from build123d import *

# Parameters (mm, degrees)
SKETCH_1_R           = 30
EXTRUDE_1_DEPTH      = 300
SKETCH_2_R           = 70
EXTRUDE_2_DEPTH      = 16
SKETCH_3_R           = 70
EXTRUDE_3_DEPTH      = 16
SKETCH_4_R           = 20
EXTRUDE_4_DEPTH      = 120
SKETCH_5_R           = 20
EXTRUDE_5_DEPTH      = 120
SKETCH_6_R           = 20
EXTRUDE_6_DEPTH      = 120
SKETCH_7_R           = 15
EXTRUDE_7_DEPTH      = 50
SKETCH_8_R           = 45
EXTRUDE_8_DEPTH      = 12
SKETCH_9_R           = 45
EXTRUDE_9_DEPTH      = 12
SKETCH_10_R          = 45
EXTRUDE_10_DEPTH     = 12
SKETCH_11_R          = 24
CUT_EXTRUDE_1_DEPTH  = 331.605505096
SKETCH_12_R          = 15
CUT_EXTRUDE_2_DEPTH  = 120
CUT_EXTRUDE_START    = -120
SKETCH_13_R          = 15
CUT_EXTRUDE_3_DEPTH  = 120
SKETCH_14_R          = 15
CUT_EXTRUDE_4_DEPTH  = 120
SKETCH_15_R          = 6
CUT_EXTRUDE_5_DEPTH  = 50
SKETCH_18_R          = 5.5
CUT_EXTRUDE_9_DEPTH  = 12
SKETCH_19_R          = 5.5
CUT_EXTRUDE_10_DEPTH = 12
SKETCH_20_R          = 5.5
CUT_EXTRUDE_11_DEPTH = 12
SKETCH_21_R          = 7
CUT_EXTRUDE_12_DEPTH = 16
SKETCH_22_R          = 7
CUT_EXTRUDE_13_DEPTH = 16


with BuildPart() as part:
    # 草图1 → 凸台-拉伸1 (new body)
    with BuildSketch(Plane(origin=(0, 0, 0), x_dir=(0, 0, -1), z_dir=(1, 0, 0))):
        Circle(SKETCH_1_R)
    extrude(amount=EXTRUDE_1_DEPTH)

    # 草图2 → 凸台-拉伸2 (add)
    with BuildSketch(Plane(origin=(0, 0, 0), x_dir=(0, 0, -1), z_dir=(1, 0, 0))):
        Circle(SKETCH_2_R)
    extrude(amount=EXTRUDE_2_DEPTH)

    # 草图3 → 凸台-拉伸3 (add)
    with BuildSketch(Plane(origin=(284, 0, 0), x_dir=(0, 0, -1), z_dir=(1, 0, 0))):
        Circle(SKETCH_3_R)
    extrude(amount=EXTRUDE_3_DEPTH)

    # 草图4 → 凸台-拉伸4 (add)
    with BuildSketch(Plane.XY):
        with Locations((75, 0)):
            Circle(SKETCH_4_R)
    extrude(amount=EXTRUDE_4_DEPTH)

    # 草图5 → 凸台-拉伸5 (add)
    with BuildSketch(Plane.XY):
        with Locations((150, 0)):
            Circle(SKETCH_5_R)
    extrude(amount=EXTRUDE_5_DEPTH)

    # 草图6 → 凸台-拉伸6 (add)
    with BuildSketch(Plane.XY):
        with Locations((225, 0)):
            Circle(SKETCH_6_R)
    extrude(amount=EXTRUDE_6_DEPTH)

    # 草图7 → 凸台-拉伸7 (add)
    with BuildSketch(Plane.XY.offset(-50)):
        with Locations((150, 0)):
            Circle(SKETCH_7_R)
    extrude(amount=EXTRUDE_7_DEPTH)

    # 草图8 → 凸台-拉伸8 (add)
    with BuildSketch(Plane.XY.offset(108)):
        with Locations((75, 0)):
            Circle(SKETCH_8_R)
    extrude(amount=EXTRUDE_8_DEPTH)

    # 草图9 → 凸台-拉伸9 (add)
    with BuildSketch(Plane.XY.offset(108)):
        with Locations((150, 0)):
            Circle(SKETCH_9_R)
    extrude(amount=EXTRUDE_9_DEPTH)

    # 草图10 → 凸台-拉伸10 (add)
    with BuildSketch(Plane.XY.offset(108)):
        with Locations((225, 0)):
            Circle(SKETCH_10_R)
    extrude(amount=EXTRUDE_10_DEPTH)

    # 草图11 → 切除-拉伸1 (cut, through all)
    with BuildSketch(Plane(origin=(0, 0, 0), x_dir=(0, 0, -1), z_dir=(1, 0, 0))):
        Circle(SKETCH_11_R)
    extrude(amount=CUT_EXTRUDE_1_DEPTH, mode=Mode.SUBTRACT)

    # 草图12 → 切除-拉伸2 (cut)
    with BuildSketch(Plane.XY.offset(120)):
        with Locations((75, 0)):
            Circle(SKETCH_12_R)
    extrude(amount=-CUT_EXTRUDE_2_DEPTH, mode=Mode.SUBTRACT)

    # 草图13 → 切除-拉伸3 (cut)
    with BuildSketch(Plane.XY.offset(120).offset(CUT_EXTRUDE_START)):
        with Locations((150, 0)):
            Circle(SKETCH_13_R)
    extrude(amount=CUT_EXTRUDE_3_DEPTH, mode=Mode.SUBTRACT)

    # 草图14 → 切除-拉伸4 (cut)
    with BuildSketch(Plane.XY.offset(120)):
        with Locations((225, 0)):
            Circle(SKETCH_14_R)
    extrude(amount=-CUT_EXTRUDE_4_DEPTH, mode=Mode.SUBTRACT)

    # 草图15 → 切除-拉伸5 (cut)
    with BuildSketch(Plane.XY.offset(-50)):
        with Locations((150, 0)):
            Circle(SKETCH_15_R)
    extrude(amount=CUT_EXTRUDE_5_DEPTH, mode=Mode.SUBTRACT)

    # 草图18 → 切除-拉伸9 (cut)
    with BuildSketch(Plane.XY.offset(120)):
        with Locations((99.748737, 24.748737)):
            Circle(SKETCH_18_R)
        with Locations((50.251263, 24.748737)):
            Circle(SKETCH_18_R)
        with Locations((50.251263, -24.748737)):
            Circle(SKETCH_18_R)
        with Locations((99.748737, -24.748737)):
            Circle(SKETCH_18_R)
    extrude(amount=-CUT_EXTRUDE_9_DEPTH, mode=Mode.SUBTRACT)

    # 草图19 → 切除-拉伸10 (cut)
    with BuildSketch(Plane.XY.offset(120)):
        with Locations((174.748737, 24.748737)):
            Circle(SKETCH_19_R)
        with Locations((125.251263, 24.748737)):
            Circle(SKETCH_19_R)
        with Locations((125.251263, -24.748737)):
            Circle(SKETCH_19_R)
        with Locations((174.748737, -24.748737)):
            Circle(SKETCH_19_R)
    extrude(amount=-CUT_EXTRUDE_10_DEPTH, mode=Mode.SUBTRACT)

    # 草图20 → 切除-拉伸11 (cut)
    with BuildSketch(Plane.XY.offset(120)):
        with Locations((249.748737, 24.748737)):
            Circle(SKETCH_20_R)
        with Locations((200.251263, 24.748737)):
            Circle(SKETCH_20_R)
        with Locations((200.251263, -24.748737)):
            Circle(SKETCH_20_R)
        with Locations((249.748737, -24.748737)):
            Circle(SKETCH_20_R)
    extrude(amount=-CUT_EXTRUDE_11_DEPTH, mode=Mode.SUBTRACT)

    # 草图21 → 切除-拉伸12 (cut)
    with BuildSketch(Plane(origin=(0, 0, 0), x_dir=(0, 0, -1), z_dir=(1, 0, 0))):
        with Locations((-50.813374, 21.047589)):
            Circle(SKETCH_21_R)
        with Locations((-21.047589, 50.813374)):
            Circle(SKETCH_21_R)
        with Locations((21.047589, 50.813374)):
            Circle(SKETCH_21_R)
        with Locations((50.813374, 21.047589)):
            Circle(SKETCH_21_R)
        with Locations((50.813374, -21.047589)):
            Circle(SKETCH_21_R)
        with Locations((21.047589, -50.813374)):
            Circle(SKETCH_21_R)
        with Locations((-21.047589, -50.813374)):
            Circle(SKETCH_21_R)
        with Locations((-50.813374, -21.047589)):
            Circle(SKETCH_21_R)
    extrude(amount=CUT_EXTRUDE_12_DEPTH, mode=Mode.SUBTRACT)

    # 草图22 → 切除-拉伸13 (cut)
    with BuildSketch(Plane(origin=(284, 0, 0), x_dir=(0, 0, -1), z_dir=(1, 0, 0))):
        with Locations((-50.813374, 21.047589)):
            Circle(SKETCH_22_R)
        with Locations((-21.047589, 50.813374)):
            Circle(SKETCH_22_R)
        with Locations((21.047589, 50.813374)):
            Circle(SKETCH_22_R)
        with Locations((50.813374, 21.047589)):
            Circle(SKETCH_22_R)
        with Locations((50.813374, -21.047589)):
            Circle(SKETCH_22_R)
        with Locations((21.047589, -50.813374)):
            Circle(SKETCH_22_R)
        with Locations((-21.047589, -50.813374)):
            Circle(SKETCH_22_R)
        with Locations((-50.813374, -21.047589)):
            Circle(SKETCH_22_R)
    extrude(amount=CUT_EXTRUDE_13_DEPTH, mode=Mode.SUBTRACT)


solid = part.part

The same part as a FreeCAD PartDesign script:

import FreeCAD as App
import Part
import Sketcher

V = App.Vector

doc = App.newDocument("Part")
body = doc.addObject("PartDesign::Body", "Body")

sketch1 = body.newObject("Sketcher::SketchObject", "Sketch")
sketch1.AttachmentSupport = (doc.getObject("YZ_Plane"), [""])
sketch1.MapMode = "FlatFace"
sketch1.addGeometry(Part.Circle(V(0, 0, 0), V(0, 0, 1), 30), False)
sketch1.addConstraint([
    Sketcher.Constraint("Coincident", 0, 3, -1, 1),
    Sketcher.Constraint("Diameter", 0, 60.0),
])
pad1 = body.newObject("PartDesign::Pad", "Pad")
pad1.Profile = sketch1
pad1.Length = 300

sketch2 = body.newObject("Sketcher::SketchObject", "Sketch001")
sketch2.AttachmentSupport = (doc.getObject("YZ_Plane"), [""])
sketch2.MapMode = "FlatFace"
sketch2.addGeometry(Part.Circle(V(0, 0, 0), V(0, 0, 1), 70), False)
sketch2.addConstraint([
    Sketcher.Constraint("Coincident", 0, 3, -1, 1),
    Sketcher.Constraint("Diameter", 0, 140.0),
])
pad2 = body.newObject("PartDesign::Pad", "Pad001")
pad2.Profile = sketch2
pad2.Length = 16

sketch3 = body.newObject("Sketcher::SketchObject", "Sketch002")
sketch3.AttachmentSupport = (doc.getObject("YZ_Plane"), [""])
sketch3.MapMode = "FlatFace"
sketch3.AttachmentOffset = App.Placement(V(0, 0, 284), App.Rotation())
sketch3.addGeometry(Part.Circle(V(0, 0, 0), V(0, 0, 1), 70), False)
sketch3.addConstraint([
    Sketcher.Constraint("Coincident", 0, 3, -1, 1),
    Sketcher.Constraint("Diameter", 0, 140.0),
])
pad3 = body.newObject("PartDesign::Pad", "Pad002")
pad3.Profile = sketch3
pad3.Length = 16

sketch4 = body.newObject("Sketcher::SketchObject", "Sketch003")
sketch4.AttachmentSupport = (doc.getObject("XY_Plane"), [""])
sketch4.MapMode = "FlatFace"
sketch4.addGeometry(Part.Circle(V(75, 0, 0), V(0, 0, 1), 20), False)
sketch4.addConstraint([
    Sketcher.Constraint("PointOnObject", 0, 3, -1),
    Sketcher.Constraint("Diameter", 0, 40.0),
    Sketcher.Constraint("DistanceX", -1, 1, 0, 3, 75.0),
])
pad4 = body.newObject("PartDesign::Pad", "Pad003")
pad4.Profile = sketch4
pad4.Length = 120

sketch5 = body.newObject("Sketcher::SketchObject", "Sketch004")
sketch5.AttachmentSupport = (doc.getObject("XY_Plane"), [""])
sketch5.MapMode = "FlatFace"
sketch5.addGeometry(Part.Circle(V(150, 0, 0), V(0, 0, 1), 20), False)
sketch5.addConstraint([
    Sketcher.Constraint("PointOnObject", 0, 3, -1),
    Sketcher.Constraint("Diameter", 0, 40.0),
    Sketcher.Constraint("DistanceX", -1, 1, 0, 3, 150.0),
])
pad5 = body.newObject("PartDesign::Pad", "Pad004")
pad5.Profile = sketch5
pad5.Length = 120

sketch6 = body.newObject("Sketcher::SketchObject", "Sketch005")
sketch6.AttachmentSupport = (doc.getObject("XY_Plane"), [""])
sketch6.MapMode = "FlatFace"
sketch6.addGeometry(Part.Circle(V(225, 0, 0), V(0, 0, 1), 20), False)
sketch6.addConstraint([
    Sketcher.Constraint("PointOnObject", 0, 3, -1),
    Sketcher.Constraint("Diameter", 0, 40.0),
    Sketcher.Constraint("DistanceX", -1, 1, 0, 3, 225.0),
])
pad6 = body.newObject("PartDesign::Pad", "Pad005")
pad6.Profile = sketch6
pad6.Length = 120

sketch7 = body.newObject("Sketcher::SketchObject", "Sketch006")
sketch7.AttachmentSupport = (doc.getObject("XY_Plane"), [""])
sketch7.MapMode = "FlatFace"
sketch7.AttachmentOffset = App.Placement(V(0, 0, -50), App.Rotation())
sketch7.addGeometry(Part.Circle(V(150, 0, 0), V(0, 0, 1), 15), False)
sketch7.addConstraint([
    Sketcher.Constraint("PointOnObject", 0, 3, -1),
    Sketcher.Constraint("Diameter", 0, 30.0),
    Sketcher.Constraint("DistanceX", -1, 1, 0, 3, 150.0),
])
pad7 = body.newObject("PartDesign::Pad", "Pad006")
pad7.Profile = sketch7
pad7.Length = 50

sketch8 = body.newObject("Sketcher::SketchObject", "Sketch007")
sketch8.AttachmentSupport = (doc.getObject("XY_Plane"), [""])
sketch8.MapMode = "FlatFace"
sketch8.AttachmentOffset = App.Placement(V(0, 0, 108), App.Rotation())
sketch8.addGeometry(Part.Circle(V(75, 0, 0), V(0, 0, 1), 45), False)
sketch8.addConstraint([
    Sketcher.Constraint("PointOnObject", 0, 3, -1),
    Sketcher.Constraint("Diameter", 0, 90.0),
    Sketcher.Constraint("DistanceX", -1, 1, 0, 3, 75.0),
])
pad8 = body.newObject("PartDesign::Pad", "Pad007")
pad8.Profile = sketch8
pad8.Length = 12

sketch9 = body.newObject("Sketcher::SketchObject", "Sketch008")
sketch9.AttachmentSupport = (doc.getObject("XY_Plane"), [""])
sketch9.MapMode = "FlatFace"
sketch9.AttachmentOffset = App.Placement(V(0, 0, 108), App.Rotation())
sketch9.addGeometry(Part.Circle(V(150, 0, 0), V(0, 0, 1), 45), False)
sketch9.addConstraint([
    Sketcher.Constraint("PointOnObject", 0, 3, -1),
    Sketcher.Constraint("Diameter", 0, 90.0),
    Sketcher.Constraint("DistanceX", -1, 1, 0, 3, 150.0),
])
pad9 = body.newObject("PartDesign::Pad", "Pad008")
pad9.Profile = sketch9
pad9.Length = 12

sketch10 = body.newObject("Sketcher::SketchObject", "Sketch009")
sketch10.AttachmentSupport = (doc.getObject("XY_Plane"), [""])
sketch10.MapMode = "FlatFace"
sketch10.AttachmentOffset = App.Placement(V(0, 0, 108), App.Rotation())
sketch10.addGeometry(Part.Circle(V(225, 0, 0), V(0, 0, 1), 45), False)
sketch10.addConstraint([
    Sketcher.Constraint("PointOnObject", 0, 3, -1),
    Sketcher.Constraint("Diameter", 0, 90.0),
    Sketcher.Constraint("DistanceX", -1, 1, 0, 3, 225.0),
])
pad10 = body.newObject("PartDesign::Pad", "Pad009")
pad10.Profile = sketch10
pad10.Length = 12

sketch11 = body.newObject("Sketcher::SketchObject", "Sketch010")
sketch11.AttachmentSupport = (doc.getObject("YZ_Plane"), [""])
sketch11.MapMode = "FlatFace"
sketch11.addGeometry(Part.Circle(V(0, 0, 0), V(0, 0, 1), 24), False)
sketch11.addConstraint([
    Sketcher.Constraint("Coincident", 0, 3, -1, 1),
    Sketcher.Constraint("Diameter", 0, 48.0),
])
pocket1 = body.newObject("PartDesign::Pocket", "Pocket")
pocket1.Profile = sketch11
pocket1.Type = "ThroughAll"
pocket1.Reversed = True

sketch12 = body.newObject("Sketcher::SketchObject", "Sketch011")
sketch12.AttachmentSupport = (doc.getObject("XY_Plane"), [""])
sketch12.MapMode = "FlatFace"
sketch12.AttachmentOffset = App.Placement(V(0, 0, 120), App.Rotation())
sketch12.addGeometry(Part.Circle(V(75, 0, 0), V(0, 0, 1), 15), False)
sketch12.addConstraint([
    Sketcher.Constraint("PointOnObject", 0, 3, -1),
    Sketcher.Constraint("Diameter", 0, 30.0),
    Sketcher.Constraint("DistanceX", -1, 1, 0, 3, 75.0),
])
pocket2 = body.newObject("PartDesign::Pocket", "Pocket001")
pocket2.Profile = sketch12
pocket2.Length = 120

sketch13 = body.newObject("Sketcher::SketchObject", "Sketch012")
sketch13.AttachmentSupport = (doc.getObject("XY_Plane"), [""])
sketch13.MapMode = "FlatFace"
sketch13.addGeometry(Part.Circle(V(150, 0, 0), V(0, 0, 1), 15), False)
sketch13.addConstraint([
    Sketcher.Constraint("PointOnObject", 0, 3, -1),
    Sketcher.Constraint("Diameter", 0, 30.0),
    Sketcher.Constraint("DistanceX", -1, 1, 0, 3, 150.0),
])
pocket3 = body.newObject("PartDesign::Pocket", "Pocket002")
pocket3.Profile = sketch13
pocket3.Length = 120
pocket3.Reversed = True

sketch14 = body.newObject("Sketcher::SketchObject", "Sketch013")
sketch14.AttachmentSupport = (doc.getObject("XY_Plane"), [""])
sketch14.MapMode = "FlatFace"
sketch14.AttachmentOffset = App.Placement(V(0, 0, 120), App.Rotation())
sketch14.addGeometry(Part.Circle(V(225, 0, 0), V(0, 0, 1), 15), False)
sketch14.addConstraint([
    Sketcher.Constraint("PointOnObject", 0, 3, -1),
    Sketcher.Constraint("Diameter", 0, 30.0),
    Sketcher.Constraint("DistanceX", -1, 1, 0, 3, 225.0),
])
pocket4 = body.newObject("PartDesign::Pocket", "Pocket003")
pocket4.Profile = sketch14
pocket4.Length = 120

sketch15 = body.newObject("Sketcher::SketchObject", "Sketch014")
sketch15.AttachmentSupport = (doc.getObject("XY_Plane"), [""])
sketch15.MapMode = "FlatFace"
sketch15.AttachmentOffset = App.Placement(V(0, 0, -50), App.Rotation())
sketch15.addGeometry(Part.Circle(V(150, 0, 0), V(0, 0, 1), 6), False)
sketch15.addConstraint([
    Sketcher.Constraint("PointOnObject", 0, 3, -1),
    Sketcher.Constraint("Diameter", 0, 12.0),
    Sketcher.Constraint("DistanceX", -1, 1, 0, 3, 150.0),
])
pocket5 = body.newObject("PartDesign::Pocket", "Pocket004")
pocket5.Profile = sketch15
pocket5.Length = 50
pocket5.Reversed = True

sketch16 = body.newObject("Sketcher::SketchObject", "Sketch015")
sketch16.AttachmentSupport = (doc.getObject("XY_Plane"), [""])
sketch16.MapMode = "FlatFace"
sketch16.AttachmentOffset = App.Placement(V(0, 0, 120), App.Rotation())
sketch16.addGeometry([
    Part.Circle(V(100, 25, 0), V(0, 0, 1), 6),
    Part.Circle(V(50, 25, 0), V(0, 0, 1), 6),
    Part.Circle(V(50, -25, 0), V(0, 0, 1), 6),
    Part.Circle(V(100, -25, 0), V(0, 0, 1), 6),
], False)
sketch16.addConstraint([
    Sketcher.Constraint("Equal", 0, 1),
    Sketcher.Constraint("Equal", 1, 2),
    Sketcher.Constraint("Equal", 2, 3),
    Sketcher.Constraint("Symmetric", 1, 3, 2, 3, -1),
    Sketcher.Constraint("Symmetric", 0, 3, 3, 3, -1),
    Sketcher.Constraint("Horizontal", 0, 3, 1, 3),
    Sketcher.Constraint("Diameter", 0, 11.0),
    Sketcher.Constraint("DistanceX", -1, 1, 0, 3, 99.748737),
    Sketcher.Constraint("DistanceY", -1, 1, 0, 3, 24.748737),
    Sketcher.Constraint("DistanceX", -1, 1, 1, 3, 50.251263),
])
pocket6 = body.newObject("PartDesign::Pocket", "Pocket005")
pocket6.Profile = sketch16
pocket6.Length = 12

sketch17 = body.newObject("Sketcher::SketchObject", "Sketch016")
sketch17.AttachmentSupport = (doc.getObject("XY_Plane"), [""])
sketch17.MapMode = "FlatFace"
sketch17.AttachmentOffset = App.Placement(V(0, 0, 120), App.Rotation())
sketch17.addGeometry([
    Part.Circle(V(175, 25, 0), V(0, 0, 1), 6),
    Part.Circle(V(125, 25, 0), V(0, 0, 1), 6),
    Part.Circle(V(125, -25, 0), V(0, 0, 1), 6),
    Part.Circle(V(175, -25, 0), V(0, 0, 1), 6),
], False)
sketch17.addConstraint([
    Sketcher.Constraint("Equal", 0, 1),
    Sketcher.Constraint("Equal", 1, 2),
    Sketcher.Constraint("Equal", 2, 3),
    Sketcher.Constraint("Symmetric", 1, 3, 2, 3, -1),
    Sketcher.Constraint("Symmetric", 0, 3, 3, 3, -1),
    Sketcher.Constraint("Horizontal", 0, 3, 1, 3),
    Sketcher.Constraint("Diameter", 0, 11.0),
    Sketcher.Constraint("DistanceX", -1, 1, 0, 3, 174.748737),
    Sketcher.Constraint("DistanceY", -1, 1, 0, 3, 24.748737),
    Sketcher.Constraint("DistanceX", -1, 1, 1, 3, 125.251263),
])
pocket7 = body.newObject("PartDesign::Pocket", "Pocket006")
pocket7.Profile = sketch17
pocket7.Length = 12

sketch18 = body.newObject("Sketcher::SketchObject", "Sketch017")
sketch18.AttachmentSupport = (doc.getObject("XY_Plane"), [""])
sketch18.MapMode = "FlatFace"
sketch18.AttachmentOffset = App.Placement(V(0, 0, 120), App.Rotation())
sketch18.addGeometry([
    Part.Circle(V(250, 25, 0), V(0, 0, 1), 6),
    Part.Circle(V(200, 25, 0), V(0, 0, 1), 6),
    Part.Circle(V(200, -25, 0), V(0, 0, 1), 6),
    Part.Circle(V(250, -25, 0), V(0, 0, 1), 6),
], False)
sketch18.addConstraint([
    Sketcher.Constraint("Equal", 0, 1),
    Sketcher.Constraint("Equal", 1, 2),
    Sketcher.Constraint("Equal", 2, 3),
    Sketcher.Constraint("Symmetric", 1, 3, 2, 3, -1),
    Sketcher.Constraint("Symmetric", 0, 3, 3, 3, -1),
    Sketcher.Constraint("Horizontal", 0, 3, 1, 3),
    Sketcher.Constraint("Diameter", 0, 11.0),
    Sketcher.Constraint("DistanceX", -1, 1, 0, 3, 249.748737),
    Sketcher.Constraint("DistanceY", -1, 1, 0, 3, 24.748737),
    Sketcher.Constraint("DistanceX", -1, 1, 1, 3, 200.251263),
])
pocket8 = body.newObject("PartDesign::Pocket", "Pocket007")
pocket8.Profile = sketch18
pocket8.Length = 12

sketch19 = body.newObject("Sketcher::SketchObject", "Sketch018")
sketch19.AttachmentSupport = (doc.getObject("YZ_Plane"), [""])
sketch19.MapMode = "FlatFace"
sketch19.addGeometry([
    Part.Circle(V(21, 51, 0), V(0, 0, 1), 7),
    Part.Circle(V(51, 21, 0), V(0, 0, 1), 7),
    Part.Circle(V(51, -21, 0), V(0, 0, 1), 7),
    Part.Circle(V(21, -51, 0), V(0, 0, 1), 7),
    Part.Circle(V(-21, -51, 0), V(0, 0, 1), 7),
    Part.Circle(V(-51, -21, 0), V(0, 0, 1), 7),
    Part.Circle(V(-51, 21, 0), V(0, 0, 1), 7),
    Part.Circle(V(-21, 51, 0), V(0, 0, 1), 7),
], False)
sketch19.addConstraint([
    Sketcher.Constraint("Equal", 0, 1),
    Sketcher.Constraint("Equal", 1, 2),
    Sketcher.Constraint("Equal", 2, 3),
    Sketcher.Constraint("Equal", 3, 4),
    Sketcher.Constraint("Equal", 4, 5),
    Sketcher.Constraint("Equal", 5, 6),
    Sketcher.Constraint("Equal", 6, 7),
    Sketcher.Constraint("Symmetric", 0, 3, 4, 3, -1, 1),
    Sketcher.Constraint("Symmetric", 1, 3, 5, 3, -1, 1),
    Sketcher.Constraint("Symmetric", 2, 3, 6, 3, -1, 1),
    Sketcher.Constraint("Symmetric", 3, 3, 7, 3, -1, 1),
    Sketcher.Constraint("Symmetric", 3, 3, 4, 3, -2),
    Sketcher.Constraint("Symmetric", 2, 3, 5, 3, -2),
    Sketcher.Constraint("Diameter", 0, 14.0),
    Sketcher.Constraint("DistanceX", -1, 1, 0, 3, 21.047589),
    Sketcher.Constraint("DistanceY", -1, 1, 1, 3, 21.047589),
    Sketcher.Constraint("DistanceY", 3, 3, 0, 3, 101.626748),
    Sketcher.Constraint("DistanceX", 5, 3, 2, 3, 101.626748),
])
pocket9 = body.newObject("PartDesign::Pocket", "Pocket008")
pocket9.Profile = sketch19
pocket9.Length = 16
pocket9.Reversed = True

sketch20 = body.newObject("Sketcher::SketchObject", "Sketch019")
sketch20.AttachmentSupport = (doc.getObject("YZ_Plane"), [""])
sketch20.MapMode = "FlatFace"
sketch20.AttachmentOffset = App.Placement(V(0, 0, 284), App.Rotation())
sketch20.addGeometry([
    Part.Circle(V(21, 51, 0), V(0, 0, 1), 7),
    Part.Circle(V(51, 21, 0), V(0, 0, 1), 7),
    Part.Circle(V(51, -21, 0), V(0, 0, 1), 7),
    Part.Circle(V(21, -51, 0), V(0, 0, 1), 7),
    Part.Circle(V(-21, -51, 0), V(0, 0, 1), 7),
    Part.Circle(V(-51, -21, 0), V(0, 0, 1), 7),
    Part.Circle(V(-51, 21, 0), V(0, 0, 1), 7),
    Part.Circle(V(-21, 51, 0), V(0, 0, 1), 7),
], False)
sketch20.addConstraint([
    Sketcher.Constraint("Equal", 0, 1),
    Sketcher.Constraint("Equal", 1, 2),
    Sketcher.Constraint("Equal", 2, 3),
    Sketcher.Constraint("Equal", 3, 4),
    Sketcher.Constraint("Equal", 4, 5),
    Sketcher.Constraint("Equal", 5, 6),
    Sketcher.Constraint("Equal", 6, 7),
    Sketcher.Constraint("Symmetric", 0, 3, 4, 3, -1, 1),
    Sketcher.Constraint("Symmetric", 1, 3, 5, 3, -1, 1),
    Sketcher.Constraint("Symmetric", 2, 3, 6, 3, -1, 1),
    Sketcher.Constraint("Symmetric", 3, 3, 7, 3, -1, 1),
    Sketcher.Constraint("Symmetric", 3, 3, 4, 3, -2),
    Sketcher.Constraint("Symmetric", 2, 3, 5, 3, -2),
    Sketcher.Constraint("Diameter", 0, 14.0),
    Sketcher.Constraint("DistanceX", -1, 1, 0, 3, 21.047589),
    Sketcher.Constraint("DistanceY", -1, 1, 1, 3, 21.047589),
    Sketcher.Constraint("DistanceY", 3, 3, 0, 3, 101.626748),
    Sketcher.Constraint("DistanceX", 5, 3, 2, 3, 101.626748),
])
pocket10 = body.newObject("PartDesign::Pocket", "Pocket009")
pocket10.Profile = sketch20
pocket10.Length = 16
pocket10.Reversed = True

doc.recompute()
